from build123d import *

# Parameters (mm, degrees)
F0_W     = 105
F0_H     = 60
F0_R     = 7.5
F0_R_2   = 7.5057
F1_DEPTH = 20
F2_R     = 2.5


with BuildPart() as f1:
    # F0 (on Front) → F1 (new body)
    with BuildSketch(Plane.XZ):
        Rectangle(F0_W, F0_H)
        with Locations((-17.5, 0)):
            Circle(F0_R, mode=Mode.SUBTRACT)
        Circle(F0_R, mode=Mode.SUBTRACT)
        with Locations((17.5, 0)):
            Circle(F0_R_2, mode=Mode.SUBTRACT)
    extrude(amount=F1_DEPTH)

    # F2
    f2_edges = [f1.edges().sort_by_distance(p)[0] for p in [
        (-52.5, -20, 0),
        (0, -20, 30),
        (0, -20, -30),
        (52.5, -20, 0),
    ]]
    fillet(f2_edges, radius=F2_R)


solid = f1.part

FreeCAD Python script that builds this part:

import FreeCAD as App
import Part
import Sketcher
from FreeCAD import Vector


def edges_at(feature, points):
    """Names of the edges that pass closest to the given points."""
    edges = feature.Shape.Edges
    near = lambda p: min(range(len(edges)), key=lambda i: edges[i].distToShape(Part.Vertex(*p))[0])
    return sorted({f"Edge{near(p) + 1}" for p in points})

doc = App.newDocument("Part")
body = doc.addObject("PartDesign::Body", "Body")

# Sketch on XZ plane
sketch1 = doc.addObject("Sketcher::SketchObject", "Sketch")
body.addObject(sketch1)
sketch1.AttachmentSupport = (doc.XZ_Plane, [""])
sketch1.MapMode = "FlatFace"
sketch1.addGeometry(Part.LineSegment(Vector(-52, 30, 0), Vector(-52, -30, 0)), False)
sketch1.addGeometry(Part.LineSegment(Vector(-52, -30, 0), Vector(52, -30, 0)), False)
sketch1.addGeometry(Part.LineSegment(Vector(52, -30, 0), Vector(52, 30, 0)), False)
sketch1.addGeometry(Part.LineSegment(Vector(52, 30, 0), Vector(-52, 30, 0)), False)
sketch1.addGeometry(Part.Circle(Vector(-18, 0, 0), Vector(0, 0, 1), 8), False)
sketch1.addGeometry(Part.Circle(Vector(0, 0, 0), Vector(0, 0, 1), 8), False)
sketch1.addGeometry(Part.Circle(Vector(18, 0, 0), Vector(0, 0, 1), 8), False)
sketch1.addConstraint(Sketcher.Constraint("Coincident", 0, 2, 1, 1))
sketch1.addConstraint(Sketcher.Constraint("Coincident", 1, 2, 2, 1))
sketch1.addConstraint(Sketcher.Constraint("Coincident", 2, 2, 3, 1))
sketch1.addConstraint(Sketcher.Constraint("Coincident", 3, 2, 0, 1))
sketch1.addConstraint(Sketcher.Constraint("Vertical", 0))
sketch1.addConstraint(Sketcher.Constraint("Horizontal", 1))
sketch1.addConstraint(Sketcher.Constraint("Vertical", 2))
sketch1.addConstraint(Sketcher.Constraint("Horizontal", 3))
sketch1.addConstraint(Sketcher.Constraint("Coincident", 5, 3, -1, 1))
sketch1.addConstraint(Sketcher.Constraint("Equal", 4, 5))
sketch1.addConstraint(Sketcher.Constraint("Symmetric", 4, 3, 6, 3, -1, 1))
sketch1.addConstraint(Sketcher.Constraint("Symmetric", 0, 2, 2, 2, -1, 1))
sketch1.addConstraint(Sketcher.Constraint("PointOnObject", 4, 3, -1))
sketch1.addConstraint(Sketcher.Constraint("Diameter", 4, 15.0))
sketch1.addConstraint(Sketcher.Constraint("DistanceX", 1, 1, 1, 2, 105.0))
sketch1.addConstraint(Sketcher.Constraint("DistanceY", 0, 2, 0, 1, 60.0))
sketch1.addConstraint(Sketcher.Constraint("DistanceX", 4, 3, 6, 3, 35.0))
sketch1.addConstraint(Sketcher.Constraint("Diameter", 6, 15.0114))
pad1 = doc.addObject("PartDesign::Pad", "Pad")
body.addObject(pad1)
pad1.Profile = sketch1
pad1.Length = 20
doc.recompute()

fillet = doc.addObject("PartDesign::Fillet", "Fillet")
body.addObject(fillet)
fillet.Base = (pad1, edges_at(pad1, [
    (-52.5, -20, 0),
    (0, -20, 30),
    (0, -20, -30),
    (52.5, -20, 0),
]))
fillet.Radius = 2.5

doc.recompute()
